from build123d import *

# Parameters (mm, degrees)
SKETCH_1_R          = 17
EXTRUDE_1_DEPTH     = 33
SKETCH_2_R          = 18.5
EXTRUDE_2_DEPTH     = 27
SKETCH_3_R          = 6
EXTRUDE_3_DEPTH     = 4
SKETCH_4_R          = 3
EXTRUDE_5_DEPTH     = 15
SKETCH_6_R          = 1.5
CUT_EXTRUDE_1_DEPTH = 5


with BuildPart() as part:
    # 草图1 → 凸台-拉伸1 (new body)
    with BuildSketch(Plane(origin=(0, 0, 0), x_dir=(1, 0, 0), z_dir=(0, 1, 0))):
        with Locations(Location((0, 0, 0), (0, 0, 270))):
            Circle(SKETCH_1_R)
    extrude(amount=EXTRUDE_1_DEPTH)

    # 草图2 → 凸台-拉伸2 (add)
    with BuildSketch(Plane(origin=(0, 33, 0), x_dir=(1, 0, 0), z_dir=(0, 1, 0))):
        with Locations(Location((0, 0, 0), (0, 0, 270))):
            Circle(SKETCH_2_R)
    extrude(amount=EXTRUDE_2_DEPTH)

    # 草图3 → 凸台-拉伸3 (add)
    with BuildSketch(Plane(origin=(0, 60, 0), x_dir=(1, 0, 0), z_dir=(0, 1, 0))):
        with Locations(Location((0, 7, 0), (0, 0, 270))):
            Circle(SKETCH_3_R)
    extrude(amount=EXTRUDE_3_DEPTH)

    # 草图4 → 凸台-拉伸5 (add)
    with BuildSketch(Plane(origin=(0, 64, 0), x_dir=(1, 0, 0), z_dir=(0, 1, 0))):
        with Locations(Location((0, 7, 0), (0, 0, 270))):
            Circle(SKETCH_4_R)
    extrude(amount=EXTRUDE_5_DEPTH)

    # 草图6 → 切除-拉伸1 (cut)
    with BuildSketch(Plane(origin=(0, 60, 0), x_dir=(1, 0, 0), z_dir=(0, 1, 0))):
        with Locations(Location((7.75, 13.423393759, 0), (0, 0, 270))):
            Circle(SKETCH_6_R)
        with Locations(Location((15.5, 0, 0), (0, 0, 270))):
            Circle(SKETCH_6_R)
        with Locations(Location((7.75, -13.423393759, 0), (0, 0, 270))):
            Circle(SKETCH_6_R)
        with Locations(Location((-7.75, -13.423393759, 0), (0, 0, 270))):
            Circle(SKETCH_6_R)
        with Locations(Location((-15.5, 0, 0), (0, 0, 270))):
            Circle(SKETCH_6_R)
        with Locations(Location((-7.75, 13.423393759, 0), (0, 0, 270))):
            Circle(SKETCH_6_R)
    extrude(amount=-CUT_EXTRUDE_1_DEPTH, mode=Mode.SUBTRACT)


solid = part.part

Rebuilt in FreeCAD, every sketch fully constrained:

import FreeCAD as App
import Part
import Sketcher

V = App.Vector

doc = App.newDocument("Part")
body = doc.addObject("PartDesign::Body", "Body")

sketch1 = doc.addObject("Sketcher::SketchObject", "Sketch")
body.addObject(sketch1)
sketch1.AttachmentSupport = (doc.XZ_Plane, [""])
sketch1.MapMode = "FlatFace"
sketch1.addGeometry(Part.Circle(V(0, 0, 0), V(0, 0, 1), 17), False)
sketch1.addConstraint([
    Sketcher.Constraint("Coincident", 0, 3, -1, 1),
    Sketcher.Constraint("Diameter", 0, 34.0),
])
pad1 = doc.addObject("PartDesign::Pad", "Pad")
body.addObject(pad1)
pad1.Profile = sketch1
pad1.Length = 33
pad1.Reversed = True

sketch2 = doc.addObject("Sketcher::SketchObject", "Sketch001")
body.addObject(sketch2)
sketch2.AttachmentSupport = (doc.XZ_Plane, [""])
sketch2.MapMode = "FlatFace"
sketch2.AttachmentOffset = App.Placement(V(0, 0, -33), App.Rotation())
sketch2.addGeometry(Part.Circle(V(0, 0, 0), V(0, 0, 1), 18), False)
sketch2.addConstraint([
    Sketcher.Constraint("Coincident", 0, 3, -1, 1),
    Sketcher.Constraint("Diameter", 0, 37.0),
])
pad2 = doc.addObject("PartDesign::Pad", "Pad001")
body.addObject(pad2)
pad2.Profile = sketch2
pad2.Length = 27
pad2.Reversed = True

sketch3 = doc.addObject("Sketcher::SketchObject", "Sketch002")
body.addObject(sketch3)
sketch3.AttachmentSupport = (doc.XZ_Plane, [""])
sketch3.MapMode = "FlatFace"
sketch3.AttachmentOffset = App.Placement(V(0, 0, -60), App.Rotation())
sketch3.addGeometry(Part.Circle(V(0, -7, 0), V(0, 0, 1), 6), False)
sketch3.addConstraint([
    Sketcher.Constraint("PointOnObject", 0, 3, -2),
    Sketcher.Constraint("Diameter", 0, 12.0),
    Sketcher.Constraint("DistanceY", 0, 3, -1, 1, 7.0),
])
pad3 = doc.addObject("PartDesign::Pad", "Pad002")
body.addObject(pad3)
pad3.Profile = sketch3
pad3.Length = 4
pad3.Reversed = True

sketch4 = doc.addObject("Sketcher::SketchObject", "Sketch003")
body.addObject(sketch4)
sketch4.AttachmentSupport = (doc.XZ_Plane, [""])
sketch4.MapMode = "FlatFace"
sketch4.AttachmentOffset = App.Placement(V(0, 0, -64), App.Rotation())
sketch4.addGeometry(Part.Circle(V(0, -7, 0), V(0, 0, 1), 3), False)
sketch4.addConstraint([
    Sketcher.Constraint("PointOnObject", 0, 3, -2),
    Sketcher.Constraint("Diameter", 0, 6.0),
    Sketcher.Constraint("DistanceY", 0, 3, -1, 1, 7.0),
])
pad4 = doc.addObject("PartDesign::Pad", "Pad003")
body.addObject(pad4)
pad4.Profile = sketch4
pad4.Length = 15
pad4.Reversed = True

sketch5 = doc.addObject("Sketcher::SketchObject", "Sketch004")
body.addObject(sketch5)
sketch5.AttachmentSupport = (doc.XZ_Plane, [""])
sketch5.MapMode = "FlatFace"
sketch5.AttachmentOffset = App.Placement(V(0, 0, -60), App.Rotation())
sketch5.addGeometry([
    Part.Circle(V(7.8, -13.4, 0), V(0, 0, 1), 1.5),
    Part.Circle(V(15.5, 0, 0), V(0, 0, 1), 1.5),
    Part.Circle(V(7.8, 13.4, 0), V(0, 0, 1), 1.5),
    Part.Circle(V(-7.8, 13.4, 0), V(0, 0, 1), 1.5),
    Part.Circle(V(-15.5, 0, 0), V(0, 0, 1), 1.5),
    Part.Circle(V(-7.8, -13.4, 0), V(0, 0, 1), 1.5),
], False)
sketch5.addConstraint([
    Sketcher.Constraint("Equal", 0, 1),
    Sketcher.Constraint("Equal", 1, 2),
    Sketcher.Constraint("Equal", 2, 3),
    Sketcher.Constraint("Equal", 3, 4),
    Sketcher.Constraint("Equal", 4, 5),
    Sketcher.Constraint("Symmetric", 0, 3, 3, 3, -1, 1),
    Sketcher.Constraint("Symmetric", 1, 3, 4, 3, -1, 1),
    Sketcher.Constraint("Symmetric", 2, 3, 5, 3, -1, 1),
    Sketcher.Constraint("Symmetric", 2, 3, 3, 3, -2),
    Sketcher.Constraint("PointOnObject", 1, 3, -1),
    Sketcher.Constraint("Diameter", 0, 3.0),
    Sketcher.Constraint("DistanceX", 4, 3, 1, 3, 31.0),
    Sketcher.Constraint("DistanceX", 3, 3, 2, 3, 15.5),
    Sketcher.Constraint("DistanceY", 0, 3, -1, 1, 13.423394),
])
pocket1 = doc.addObject("PartDesign::Pocket", "Pocket")
body.addObject(pocket1)
pocket1.Profile = sketch5
pocket1.Length = 5
pocket1.Reversed = True

doc.recompute()
